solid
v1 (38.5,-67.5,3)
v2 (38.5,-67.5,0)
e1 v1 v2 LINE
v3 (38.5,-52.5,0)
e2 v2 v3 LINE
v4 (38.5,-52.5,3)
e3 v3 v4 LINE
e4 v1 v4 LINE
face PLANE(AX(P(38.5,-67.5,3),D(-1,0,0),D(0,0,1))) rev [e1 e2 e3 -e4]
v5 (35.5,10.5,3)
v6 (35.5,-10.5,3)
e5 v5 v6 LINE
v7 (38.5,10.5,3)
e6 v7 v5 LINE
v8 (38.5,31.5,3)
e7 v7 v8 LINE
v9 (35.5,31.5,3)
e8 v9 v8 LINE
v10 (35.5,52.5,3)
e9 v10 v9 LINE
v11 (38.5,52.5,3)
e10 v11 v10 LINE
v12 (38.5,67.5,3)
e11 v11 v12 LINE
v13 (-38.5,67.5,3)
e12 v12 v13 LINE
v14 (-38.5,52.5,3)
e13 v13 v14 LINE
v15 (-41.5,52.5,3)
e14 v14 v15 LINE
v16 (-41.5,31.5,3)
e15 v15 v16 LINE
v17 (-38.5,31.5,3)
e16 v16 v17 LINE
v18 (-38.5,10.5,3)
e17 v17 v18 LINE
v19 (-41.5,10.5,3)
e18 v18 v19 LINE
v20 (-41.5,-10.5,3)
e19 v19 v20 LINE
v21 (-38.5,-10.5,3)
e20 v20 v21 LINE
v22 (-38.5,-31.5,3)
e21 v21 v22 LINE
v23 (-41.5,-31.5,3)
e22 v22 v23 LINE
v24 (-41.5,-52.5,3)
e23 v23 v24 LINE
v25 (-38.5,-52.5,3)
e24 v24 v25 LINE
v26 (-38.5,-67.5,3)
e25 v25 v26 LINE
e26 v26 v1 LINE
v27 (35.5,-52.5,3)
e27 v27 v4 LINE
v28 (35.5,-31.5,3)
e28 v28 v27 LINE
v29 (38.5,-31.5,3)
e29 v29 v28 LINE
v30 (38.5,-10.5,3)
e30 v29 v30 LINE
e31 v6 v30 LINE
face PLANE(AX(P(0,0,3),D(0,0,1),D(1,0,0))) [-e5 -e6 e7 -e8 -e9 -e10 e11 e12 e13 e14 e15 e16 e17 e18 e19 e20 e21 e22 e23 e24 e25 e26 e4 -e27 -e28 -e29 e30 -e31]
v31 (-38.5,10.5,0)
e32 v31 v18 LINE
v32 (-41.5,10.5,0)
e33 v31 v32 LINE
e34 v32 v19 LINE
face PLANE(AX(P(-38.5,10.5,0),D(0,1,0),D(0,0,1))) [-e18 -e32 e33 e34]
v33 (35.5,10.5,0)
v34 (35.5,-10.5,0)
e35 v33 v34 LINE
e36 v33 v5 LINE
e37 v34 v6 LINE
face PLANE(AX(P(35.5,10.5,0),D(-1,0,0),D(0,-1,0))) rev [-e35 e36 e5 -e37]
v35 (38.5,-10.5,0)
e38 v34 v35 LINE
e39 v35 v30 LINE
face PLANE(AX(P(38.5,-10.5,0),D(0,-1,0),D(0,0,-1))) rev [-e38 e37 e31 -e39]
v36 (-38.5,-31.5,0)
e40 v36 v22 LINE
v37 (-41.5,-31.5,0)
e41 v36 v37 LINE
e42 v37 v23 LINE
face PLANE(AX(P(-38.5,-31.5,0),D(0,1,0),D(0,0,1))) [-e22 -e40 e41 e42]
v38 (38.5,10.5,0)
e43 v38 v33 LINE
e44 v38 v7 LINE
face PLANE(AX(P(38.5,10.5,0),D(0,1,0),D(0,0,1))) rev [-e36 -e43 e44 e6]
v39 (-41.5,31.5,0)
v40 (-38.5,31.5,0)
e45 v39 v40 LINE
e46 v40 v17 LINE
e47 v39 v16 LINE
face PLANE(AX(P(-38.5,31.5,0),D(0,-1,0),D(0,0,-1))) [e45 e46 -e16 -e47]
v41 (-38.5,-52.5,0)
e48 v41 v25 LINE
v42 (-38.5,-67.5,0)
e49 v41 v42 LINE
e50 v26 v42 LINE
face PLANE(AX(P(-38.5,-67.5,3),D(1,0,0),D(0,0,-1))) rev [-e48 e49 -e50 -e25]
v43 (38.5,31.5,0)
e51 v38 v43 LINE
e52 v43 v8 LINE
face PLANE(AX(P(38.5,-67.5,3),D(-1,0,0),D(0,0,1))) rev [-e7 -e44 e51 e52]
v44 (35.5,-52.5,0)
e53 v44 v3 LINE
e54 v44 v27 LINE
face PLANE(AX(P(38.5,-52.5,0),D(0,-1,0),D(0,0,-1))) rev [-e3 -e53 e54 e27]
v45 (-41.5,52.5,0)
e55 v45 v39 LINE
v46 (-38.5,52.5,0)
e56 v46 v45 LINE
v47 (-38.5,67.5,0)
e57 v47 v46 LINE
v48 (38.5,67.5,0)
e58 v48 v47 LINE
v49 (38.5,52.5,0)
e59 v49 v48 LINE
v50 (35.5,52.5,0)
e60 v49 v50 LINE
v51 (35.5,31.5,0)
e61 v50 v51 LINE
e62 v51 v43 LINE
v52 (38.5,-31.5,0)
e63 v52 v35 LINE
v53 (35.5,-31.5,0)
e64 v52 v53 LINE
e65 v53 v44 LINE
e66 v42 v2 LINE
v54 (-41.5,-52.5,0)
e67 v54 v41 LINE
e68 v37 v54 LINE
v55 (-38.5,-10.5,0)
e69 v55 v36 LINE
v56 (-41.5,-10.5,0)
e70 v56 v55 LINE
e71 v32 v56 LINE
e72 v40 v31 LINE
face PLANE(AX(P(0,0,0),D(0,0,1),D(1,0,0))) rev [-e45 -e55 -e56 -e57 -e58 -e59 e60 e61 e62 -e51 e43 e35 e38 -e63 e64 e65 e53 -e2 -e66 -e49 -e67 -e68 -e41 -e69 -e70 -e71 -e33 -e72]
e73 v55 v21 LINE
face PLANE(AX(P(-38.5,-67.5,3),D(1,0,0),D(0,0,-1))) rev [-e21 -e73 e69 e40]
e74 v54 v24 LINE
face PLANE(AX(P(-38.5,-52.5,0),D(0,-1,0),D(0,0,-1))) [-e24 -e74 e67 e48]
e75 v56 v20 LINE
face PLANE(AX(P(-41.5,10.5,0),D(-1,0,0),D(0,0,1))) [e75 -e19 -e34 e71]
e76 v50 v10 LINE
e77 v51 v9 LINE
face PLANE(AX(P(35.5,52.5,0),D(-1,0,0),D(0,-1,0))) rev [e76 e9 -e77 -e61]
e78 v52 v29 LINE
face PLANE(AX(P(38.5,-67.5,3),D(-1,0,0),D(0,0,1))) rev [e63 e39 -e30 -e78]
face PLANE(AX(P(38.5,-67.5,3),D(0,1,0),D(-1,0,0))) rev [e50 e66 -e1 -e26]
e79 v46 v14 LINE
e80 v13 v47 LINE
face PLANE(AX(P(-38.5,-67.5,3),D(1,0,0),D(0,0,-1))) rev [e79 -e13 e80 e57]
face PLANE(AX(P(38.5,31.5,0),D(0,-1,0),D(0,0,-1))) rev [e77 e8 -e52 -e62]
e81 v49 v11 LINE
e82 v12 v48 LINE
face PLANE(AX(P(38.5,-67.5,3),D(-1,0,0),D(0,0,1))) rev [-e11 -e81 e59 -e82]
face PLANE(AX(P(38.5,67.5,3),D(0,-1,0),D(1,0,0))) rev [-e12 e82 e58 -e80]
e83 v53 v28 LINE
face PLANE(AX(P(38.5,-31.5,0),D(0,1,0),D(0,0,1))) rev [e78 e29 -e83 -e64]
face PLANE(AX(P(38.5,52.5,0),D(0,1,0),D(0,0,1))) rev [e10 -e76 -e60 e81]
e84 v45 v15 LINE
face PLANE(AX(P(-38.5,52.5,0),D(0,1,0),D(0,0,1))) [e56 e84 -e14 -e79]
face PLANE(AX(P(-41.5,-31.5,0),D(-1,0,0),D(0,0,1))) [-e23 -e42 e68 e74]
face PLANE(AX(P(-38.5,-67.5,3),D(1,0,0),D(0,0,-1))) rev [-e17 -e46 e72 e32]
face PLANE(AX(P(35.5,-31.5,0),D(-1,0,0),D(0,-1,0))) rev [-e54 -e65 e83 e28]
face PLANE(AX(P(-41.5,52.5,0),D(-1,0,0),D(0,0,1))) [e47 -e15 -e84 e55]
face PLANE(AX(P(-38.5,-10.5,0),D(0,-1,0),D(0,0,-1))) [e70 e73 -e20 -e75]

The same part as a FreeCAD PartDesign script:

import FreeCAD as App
import Part
import Sketcher

V = App.Vector
Q = App.Units.Quantity

doc = App.newDocument("Part")
body = doc.addObject("PartDesign::Body", "Body")

# Sketch on XY plane
sketch1 = body.newObject("Sketcher::SketchObject", "Sketch")
sketch1.AttachmentSupport = (doc.getObject("XY_Plane"), [""])
sketch1.MapMode = "FlatFace"
sketch1.addGeometry(Part.LineSegment(V(-38, 68, 0), V(-38, -68, 0)), False)
sketch1.addGeometry(Part.LineSegment(V(-38, -68, 0), V(38, -68, 0)), False)
sketch1.addGeometry(Part.LineSegment(V(38, -68, 0), V(38, 68, 0)), False)
sketch1.addGeometry(Part.LineSegment(V(38, 68, 0), V(-38, 68, 0)), False)
sketch1.addConstraint(Sketcher.Constraint("Coincident", 0, 2, 1, 1))
sketch1.addConstraint(Sketcher.Constraint("Coincident", 1, 2, 2, 1))
sketch1.addConstraint(Sketcher.Constraint("Coincident", 2, 2, 3, 1))
sketch1.addConstraint(Sketcher.Constraint("Coincident", 3, 2, 0, 1))
sketch1.addConstraint(Sketcher.Constraint("Vertical", 0))
sketch1.addConstraint(Sketcher.Constraint("Horizontal", 1))
sketch1.addConstraint(Sketcher.Constraint("Vertical", 2))
sketch1.addConstraint(Sketcher.Constraint("Horizontal", 3))
sketch1.addConstraint(Sketcher.Constraint("Symmetric", 0, 2, 2, 2, -1, 1))
sketch1.addConstraint(Sketcher.Constraint("DistanceX", 1, 1, 1, 2, Q("77 mm")))
sketch1.addConstraint(Sketcher.Constraint("DistanceY", 0, 2, 0, 1, Q("135 mm")))
pad1 = body.newObject("PartDesign::Pad", "Pad")
pad1.Profile = sketch1
pad1.Length = 3

# Sketch on XY plane
sketch2 = body.newObject("Sketcher::SketchObject", "Sketch001")
sketch2.AttachmentSupport = (doc.getObject("XY_Plane"), [""])
sketch2.MapMode = "FlatFace"
sketch2.AttachmentOffset = App.Placement(V(0, 0, 3), App.Rotation())
sketch2.addGeometry(Part.LineSegment(V(35.5, 52.5, 0), V(35.5, 31.5, 0)), False)
sketch2.addGeometry(Part.LineSegment(V(35.5, 31.5, 0), V(38.5, 31.5, 0)), False)
sketch2.addGeometry(Part.LineSegment(V(38.5, 31.5, 0), V(38.5, 52.5, 0)), False)
sketch2.addGeometry(Part.LineSegment(V(38.5, 52.5, 0), V(35.5, 52.5, 0)), False)
sketch2.addGeometry(Part.LineSegment(V(35.5, 10.5, 0), V(35.5, -10.5, 0)), False)
sketch2.addGeometry(Part.LineSegment(V(35.5, -10.5, 0), V(38.5, -10.5, 0)), False)
sketch2.addGeometry(Part.LineSegment(V(38.5, -10.5, 0), V(38.5, 10.5, 0)), False)
sketch2.addGeometry(Part.LineSegment(V(38.5, 10.5, 0), V(35.5, 10.5, 0)), False)
sketch2.addGeometry(Part.LineSegment(V(35.5, -31.5, 0), V(35.5, -52.5, 0)), False)
sketch2.addGeometry(Part.LineSegment(V(35.5, -52.5, 0), V(38.5, -52.5, 0)), False)
sketch2.addGeometry(Part.LineSegment(V(38.5, -52.5, 0), V(38.5, -31.5, 0)), False)
sketch2.addGeometry(Part.LineSegment(V(38.5, -31.5, 0), V(35.5, -31.5, 0)), False)
sketch2.addConstraint(Sketcher.Constraint("Coincident", 0, 2, 1, 1))
sketch2.addConstraint(Sketcher.Constraint("Coincident", 1, 2, 2, 1))
sketch2.addConstraint(Sketcher.Constraint("Coincident", 2, 2, 3, 1))
sketch2.addConstraint(Sketcher.Constraint("Coincident", 3, 2, 0, 1))
sketch2.addConstraint(Sketcher.Constraint("Coincident", 4, 2, 5, 1))
sketch2.addConstraint(Sketcher.Constraint("Coincident", 5, 2, 6, 1))
sketch2.addConstraint(Sketcher.Constraint("Coincident", 6, 2, 7, 1))
sketch2.addConstraint(Sketcher.Constraint("Coincident", 7, 2, 4, 1))
sketch2.addConstraint(Sketcher.Constraint("Coincident", 8, 2, 9, 1))
sketch2.addConstraint(Sketcher.Constraint("Coincident", 9, 2, 10, 1))
sketch2.addConstraint(Sketcher.Constraint("Coincident", 10, 2, 11, 1))
sketch2.addConstraint(Sketcher.Constraint("Coincident", 11, 2, 8, 1))
sketch2.addConstraint(Sketcher.Constraint("Vertical", 0))
sketch2.addConstraint(Sketcher.Constraint("Horizontal", 1))
sketch2.addConstraint(Sketcher.Constraint("Vertical", 2))
sketch2.addConstraint(Sketcher.Constraint("Horizontal", 3))
sketch2.addConstraint(Sketcher.Constraint("Vertical", 4))
sketch2.addConstraint(Sketcher.Constraint("Horizontal", 5))
sketch2.addConstraint(Sketcher.Constraint("Vertical", 6))
sketch2.addConstraint(Sketcher.Constraint("Horizontal", 7))
sketch2.addConstraint(Sketcher.Constraint("Vertical", 8))
sketch2.addConstraint(Sketcher.Constraint("Horizontal", 9))
sketch2.addConstraint(Sketcher.Constraint("Vertical", 10))
sketch2.addConstraint(Sketcher.Constraint("Horizontal", 11))
sketch2.addConstraint(Sketcher.Constraint("Symmetric", 3, 2, 8, 2, -1))
sketch2.addConstraint(Sketcher.Constraint("Symmetric", 1, 2, 10, 2, -1))
sketch2.addConstraint(Sketcher.Constraint("Vertical", 3, 2, 4, 2))
sketch2.addConstraint(Sketcher.Constraint("Vertical", 2, 2, 5, 2))
sketch2.addConstraint(Sketcher.Constraint("Equal", 2, 4))
sketch2.addConstraint(Sketcher.Constraint("DistanceX", 1, 1, 1, 2, Q("3 mm")))
sketch2.addConstraint(Sketcher.Constraint("DistanceY", 0, 2, 0, 1, Q("21 mm")))
sketch2.addConstraint(Sketcher.Constraint("DistanceY", 4, 2, 0, 2, Q("42 mm")))
sketch2.addConstraint(Sketcher.Constraint("DistanceY", 8, 2, 4, 2, Q("42 mm")))
sketch2.addConstraint(Sketcher.Constraint("DistanceX", -1, 1, 0, 2, Q("35.5 mm")))
pocket1 = body.newObject("PartDesign::Pocket", "Pocket")
pocket1.Profile = sketch2
pocket1.Type = "ThroughAll"

# Sketch on XY plane
sketch3 = body.newObject("Sketcher::SketchObject", "Sketch002")
sketch3.AttachmentSupport = (doc.getObject("XY_Plane"), [""])
sketch3.MapMode = "FlatFace"
sketch3.AttachmentOffset = App.Placement(V(0, 0, 3), App.Rotation())
sketch3.addGeometry(Part.LineSegment(V(-41.5, 52.5, 0), V(-41.5, 31.5, 0)), False)
sketch3.addGeometry(Part.LineSegment(V(-41.5, 31.5, 0), V(-38.5, 31.5, 0)), False)
sketch3.addGeometry(Part.LineSegment(V(-38.5, 31.5, 0), V(-38.5, 52.5, 0)), False)
sketch3.addGeometry(Part.LineSegment(V(-38.5, 52.5, 0), V(-41.5, 52.5, 0)), False)
sketch3.addConstraint(Sketcher.Constraint("Coincident", 0, 2, 1, 1))
sketch3.addConstraint(Sketcher.Constraint("Coincident", 1, 2, 2, 1))
sketch3.addConstraint(Sketcher.Constraint("Coincident", 2, 2, 3, 1))
sketch3.addConstraint(Sketcher.Constraint("Coincident", 3, 2, 0, 1))
sketch3.addConstraint(Sketcher.Constraint("Vertical", 0))
sketch3.addConstraint(Sketcher.Constraint("Horizontal", 1))
sketch3.addConstraint(Sketcher.Constraint("Vertical", 2))
sketch3.addConstraint(Sketcher.Constraint("Horizontal", 3))
sketch3.addConstraint(Sketcher.Constraint("DistanceX", 1, 1, 1, 2, Q("3 mm")))
sketch3.addConstraint(Sketcher.Constraint("DistanceY", 0, 2, 0, 1, Q("21 mm")))
sketch3.addConstraint(Sketcher.Constraint("DistanceX", 0, 2, -1, 1, Q("41.5 mm")))
sketch3.addConstraint(Sketcher.Constraint("DistanceY", -1, 1, 0, 2, Q("31.5 mm")))
pad2 = body.newObject("PartDesign::Pad", "Pad001")
pad2.Profile = sketch3
pad2.Length = 3
pad2.Reversed = True
doc.recompute()

linearpattern = body.newObject("PartDesign::LinearPattern", "LinearPattern")
linearpattern.Originals = [pad2]
linearpattern.Direction = (doc.getObject("Y_Axis"), [""])
linearpattern.Mode = "offset"
linearpattern.Offset = 42
linearpattern.Occurrences = 3
linearpattern.Reversed = True
body.Tip = linearpattern

doc.recompute()
